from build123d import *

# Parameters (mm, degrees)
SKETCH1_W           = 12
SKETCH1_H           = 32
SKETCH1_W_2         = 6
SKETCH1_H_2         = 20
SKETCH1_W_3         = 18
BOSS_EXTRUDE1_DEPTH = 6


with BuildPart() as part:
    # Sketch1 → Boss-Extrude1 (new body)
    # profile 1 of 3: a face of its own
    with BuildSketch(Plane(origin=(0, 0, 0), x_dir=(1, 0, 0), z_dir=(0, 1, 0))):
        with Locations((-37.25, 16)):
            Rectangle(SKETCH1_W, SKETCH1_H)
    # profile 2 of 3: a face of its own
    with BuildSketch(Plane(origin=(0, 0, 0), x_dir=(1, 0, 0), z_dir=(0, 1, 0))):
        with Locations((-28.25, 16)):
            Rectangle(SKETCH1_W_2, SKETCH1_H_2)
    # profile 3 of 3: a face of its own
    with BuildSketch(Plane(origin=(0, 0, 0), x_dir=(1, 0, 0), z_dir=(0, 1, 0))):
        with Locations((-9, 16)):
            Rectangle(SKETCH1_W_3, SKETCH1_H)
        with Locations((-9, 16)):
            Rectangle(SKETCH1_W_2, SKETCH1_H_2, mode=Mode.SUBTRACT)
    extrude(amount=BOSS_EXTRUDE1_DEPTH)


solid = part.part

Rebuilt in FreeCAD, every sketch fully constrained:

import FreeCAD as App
import Part
import Sketcher
from FreeCAD import Vector
Q = App.Units.Quantity

doc = App.newDocument("Part")
params = doc.addObject("Spreadsheet::Sheet", "Params")
for row, (alias, value) in enumerate([
    ("sketch1_width", "12 mm"),
    ("sketch1_width2", "6 mm"),
    ("sketch1_width3", "18 mm"),
    ("sketch1_height", "32 mm"),
    ("pad1_length", "6 mm"),
], start=1):
    params.set(f"A{row}", alias)
    params.set(f"B{row}", "=" + value)
    params.setAlias(f"B{row}", alias)

body = doc.addObject("PartDesign::Body", "Body")
body.AllowCompound = True

sketch1 = body.newObject("Sketcher::SketchObject", "Sketch")
sketch1.AttachmentSupport = (doc.getObject("XZ_Plane"), [""])
sketch1.MapMode = "FlatFace"
sketch1.addGeometry([
    Part.LineSegment(Vector(-43.25, -32, 0), Vector(-43.25, 0, 0)),
    Part.LineSegment(Vector(-43.25, 0, 0), Vector(-31.25, 0, 0)),
    Part.LineSegment(Vector(-31.25, 0, 0), Vector(-31.25, -6, 0)),
    Part.LineSegment(Vector(-31.25, -6, 0), Vector(-25.25, -6, 0)),
    Part.LineSegment(Vector(-25.25, -6, 0), Vector(-25.25, -26, 0)),
    Part.LineSegment(Vector(-25.25, -26, 0), Vector(-31.25, -26, 0)),
    Part.LineSegment(Vector(-31.25, -26, 0), Vector(-31.25, -32, 0)),
    Part.LineSegment(Vector(-31.25, -32, 0), Vector(-43.25, -32, 0)),
    Part.LineSegment(Vector(-18, -32, 0), Vector(-18, 0, 0)),
    Part.LineSegment(Vector(-18, 0, 0), Vector(0, 0, 0)),
    Part.LineSegment(Vector(0, 0, 0), Vector(0, -32, 0)),
    Part.LineSegment(Vector(0, -32, 0), Vector(-18, -32, 0)),
    Part.LineSegment(Vector(-6, -6, 0), Vector(-12, -6, 0)),
    Part.LineSegment(Vector(-12, -6, 0), Vector(-12, -26, 0)),
    Part.LineSegment(Vector(-12, -26, 0), Vector(-6, -26, 0)),
    Part.LineSegment(Vector(-6, -26, 0), Vector(-6, -6, 0)),
], False)
sketch1.addConstraint([
    Sketcher.Constraint("Coincident", 0, 2, 1, 1),
    Sketcher.Constraint("Coincident", 1, 2, 2, 1),
    Sketcher.Constraint("Coincident", 2, 2, 3, 1),
    Sketcher.Constraint("Coincident", 3, 2, 4, 1),
    Sketcher.Constraint("Coincident", 4, 2, 5, 1),
    Sketcher.Constraint("Coincident", 5, 2, 6, 1),
    Sketcher.Constraint("Coincident", 6, 2, 7, 1),
    Sketcher.Constraint("Coincident", 7, 2, 0, 1),
    Sketcher.Constraint("Coincident", 8, 2, 9, 1),
    Sketcher.Constraint("Coincident", 9, 2, 10, 1),
    Sketcher.Constraint("Coincident", 10, 2, 11, 1),
    Sketcher.Constraint("Coincident", 11, 2, 8, 1),
    Sketcher.Constraint("Coincident", 12, 2, 13, 1),
    Sketcher.Constraint("Coincident", 13, 2, 14, 1),
    Sketcher.Constraint("Coincident", 14, 2, 15, 1),
    Sketcher.Constraint("Coincident", 15, 2, 12, 1),
    Sketcher.Constraint("Vertical", 0),
    Sketcher.Constraint("Horizontal", 1),
    Sketcher.Constraint("Vertical", 2),
    Sketcher.Constraint("Horizontal", 3),
    Sketcher.Constraint("Vertical", 4),
    Sketcher.Constraint("Horizontal", 5),
    Sketcher.Constraint("Vertical", 6),
    Sketcher.Constraint("Horizontal", 7),
    Sketcher.Constraint("Vertical", 8),
    Sketcher.Constraint("Horizontal", 9),
    Sketcher.Constraint("Vertical", 10),
    Sketcher.Constraint("Horizontal", 11),
    Sketcher.Constraint("Horizontal", 12),
    Sketcher.Constraint("Vertical", 13),
    Sketcher.Constraint("Horizontal", 14),
    Sketcher.Constraint("Vertical", 15),
    Sketcher.Constraint("Coincident", 9, 2, -1, 1),
    Sketcher.Constraint("PointOnObject", 0, 2, -1),
    Sketcher.Constraint("Horizontal", 7, 2, 10, 2),
    Sketcher.Constraint("Horizontal", 3, 2, 12, 2),
    Sketcher.Constraint("Horizontal", 5, 2, 13, 2),
    Sketcher.Constraint("Vertical", 2, 2, 5, 2),
    Sketcher.Constraint("Equal", 5, 12),
    Sketcher.Constraint("Equal", 14, 2),
    Sketcher.Constraint("Equal", 2, 6),
    Sketcher.Constraint("DistanceX", 1, 1, 1, 2, Q("12 mm")),
    Sketcher.Constraint("DistanceX", 3, 1, 3, 2, Q("6 mm")),
    Sketcher.Constraint("DistanceX", 9, 1, 9, 2, Q("18 mm")),
    Sketcher.Constraint("DistanceY", 0, 1, 0, 2, Q("32 mm")),
    Sketcher.Constraint("DistanceX", 12, 2, -1, 1, Q("12 mm")),
    Sketcher.Constraint("DistanceX", 0, 2, -1, 1, Q("43.25 mm")),
])
sketch1.setExpression("Constraints[41]", "Params.sketch1_width")
sketch1.setExpression("Constraints[42]", "Params.sketch1_width2")
sketch1.setExpression("Constraints[43]", "Params.sketch1_width3")
sketch1.setExpression("Constraints[44]", "Params.sketch1_height")
pad1 = body.newObject("PartDesign::Pad", "Pad")
pad1.Profile = sketch1
pad1.setExpression("Length", "Params.pad1_length")
pad1.Reversed = True

doc.recompute()
